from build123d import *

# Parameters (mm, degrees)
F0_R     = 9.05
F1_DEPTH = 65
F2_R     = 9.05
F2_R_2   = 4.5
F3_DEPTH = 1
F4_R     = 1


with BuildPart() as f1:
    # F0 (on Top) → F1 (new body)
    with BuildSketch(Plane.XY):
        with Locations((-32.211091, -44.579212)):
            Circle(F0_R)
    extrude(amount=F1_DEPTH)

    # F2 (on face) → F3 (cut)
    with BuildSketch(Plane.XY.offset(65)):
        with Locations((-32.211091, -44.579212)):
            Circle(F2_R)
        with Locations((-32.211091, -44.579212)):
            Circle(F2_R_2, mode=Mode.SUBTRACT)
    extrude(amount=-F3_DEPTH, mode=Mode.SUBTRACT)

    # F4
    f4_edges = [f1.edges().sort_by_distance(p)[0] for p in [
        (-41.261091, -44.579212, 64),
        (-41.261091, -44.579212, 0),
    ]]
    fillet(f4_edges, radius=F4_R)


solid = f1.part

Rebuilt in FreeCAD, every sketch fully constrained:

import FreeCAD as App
import Part
import Sketcher
from FreeCAD import Vector


def edges_at(feature, points):
    """Names of the edges that pass closest to the given points."""
    edges = feature.Shape.Edges
    near = lambda p: min(range(len(edges)), key=lambda i: edges[i].distToShape(Part.Vertex(*p))[0])
    return sorted({f"Edge{near(p) + 1}" for p in points})

doc = App.newDocument("Part")
body = doc.addObject("PartDesign::Body", "Body")

# Sketch on XY plane
sketch1 = body.newObject("Sketcher::SketchObject", "Sketch")
sketch1.AttachmentSupport = (doc.getObject("XY_Plane"), [""])
sketch1.MapMode = "FlatFace"
sketch1.addGeometry(Part.Circle(Vector(-32.211091, -44.579212, 0), Vector(0, 0, 1), 9.05), False)
sketch1.addConstraint(Sketcher.Constraint("Diameter", 0, 18.1))
sketch1.addConstraint(Sketcher.Constraint("DistanceX", 0, 3, -1, 1, 32.211091))
sketch1.addConstraint(Sketcher.Constraint("DistanceY", 0, 3, -1, 1, 44.579212))
pad1 = body.newObject("PartDesign::Pad", "Pad")
pad1.Profile = sketch1
pad1.Length = 65

# Sketch on XY plane
sketch2 = body.newObject("Sketcher::SketchObject", "Sketch001")
sketch2.AttachmentSupport = (doc.getObject("XY_Plane"), [""])
sketch2.MapMode = "FlatFace"
sketch2.AttachmentOffset = App.Placement(Vector(0, 0, 65), App.Rotation())
sketch2.addGeometry(Part.Circle(Vector(-32.211091, -44.579212, 0), Vector(0, 0, 1), 9.05), False)
sketch2.addGeometry(Part.Circle(Vector(-32.211091, -44.579212, 0), Vector(0, 0, 1), 4.5), False)
sketch2.addConstraint(Sketcher.Constraint("Coincident", 1, 3, 0, 3))
sketch2.addConstraint(Sketcher.Constraint("Diameter", 1, 9.0))
sketch2.addConstraint(Sketcher.Constraint("Diameter", 0, 18.1))
sketch2.addConstraint(Sketcher.Constraint("DistanceX", 0, 3, -1, 1, 32.211091))
sketch2.addConstraint(Sketcher.Constraint("DistanceY", 0, 3, -1, 1, 44.579212))
pocket1 = body.newObject("PartDesign::Pocket", "Pocket")
pocket1.Profile = sketch2
pocket1.Length = 1
doc.recompute()

fillet = body.newObject("PartDesign::Fillet", "Fillet")
fillet.Base = (pocket1, edges_at(pocket1, [(-41.261, -44.579, 64), (-41.261, -44.579, 0)]))
fillet.Radius = 1

doc.recompute()
